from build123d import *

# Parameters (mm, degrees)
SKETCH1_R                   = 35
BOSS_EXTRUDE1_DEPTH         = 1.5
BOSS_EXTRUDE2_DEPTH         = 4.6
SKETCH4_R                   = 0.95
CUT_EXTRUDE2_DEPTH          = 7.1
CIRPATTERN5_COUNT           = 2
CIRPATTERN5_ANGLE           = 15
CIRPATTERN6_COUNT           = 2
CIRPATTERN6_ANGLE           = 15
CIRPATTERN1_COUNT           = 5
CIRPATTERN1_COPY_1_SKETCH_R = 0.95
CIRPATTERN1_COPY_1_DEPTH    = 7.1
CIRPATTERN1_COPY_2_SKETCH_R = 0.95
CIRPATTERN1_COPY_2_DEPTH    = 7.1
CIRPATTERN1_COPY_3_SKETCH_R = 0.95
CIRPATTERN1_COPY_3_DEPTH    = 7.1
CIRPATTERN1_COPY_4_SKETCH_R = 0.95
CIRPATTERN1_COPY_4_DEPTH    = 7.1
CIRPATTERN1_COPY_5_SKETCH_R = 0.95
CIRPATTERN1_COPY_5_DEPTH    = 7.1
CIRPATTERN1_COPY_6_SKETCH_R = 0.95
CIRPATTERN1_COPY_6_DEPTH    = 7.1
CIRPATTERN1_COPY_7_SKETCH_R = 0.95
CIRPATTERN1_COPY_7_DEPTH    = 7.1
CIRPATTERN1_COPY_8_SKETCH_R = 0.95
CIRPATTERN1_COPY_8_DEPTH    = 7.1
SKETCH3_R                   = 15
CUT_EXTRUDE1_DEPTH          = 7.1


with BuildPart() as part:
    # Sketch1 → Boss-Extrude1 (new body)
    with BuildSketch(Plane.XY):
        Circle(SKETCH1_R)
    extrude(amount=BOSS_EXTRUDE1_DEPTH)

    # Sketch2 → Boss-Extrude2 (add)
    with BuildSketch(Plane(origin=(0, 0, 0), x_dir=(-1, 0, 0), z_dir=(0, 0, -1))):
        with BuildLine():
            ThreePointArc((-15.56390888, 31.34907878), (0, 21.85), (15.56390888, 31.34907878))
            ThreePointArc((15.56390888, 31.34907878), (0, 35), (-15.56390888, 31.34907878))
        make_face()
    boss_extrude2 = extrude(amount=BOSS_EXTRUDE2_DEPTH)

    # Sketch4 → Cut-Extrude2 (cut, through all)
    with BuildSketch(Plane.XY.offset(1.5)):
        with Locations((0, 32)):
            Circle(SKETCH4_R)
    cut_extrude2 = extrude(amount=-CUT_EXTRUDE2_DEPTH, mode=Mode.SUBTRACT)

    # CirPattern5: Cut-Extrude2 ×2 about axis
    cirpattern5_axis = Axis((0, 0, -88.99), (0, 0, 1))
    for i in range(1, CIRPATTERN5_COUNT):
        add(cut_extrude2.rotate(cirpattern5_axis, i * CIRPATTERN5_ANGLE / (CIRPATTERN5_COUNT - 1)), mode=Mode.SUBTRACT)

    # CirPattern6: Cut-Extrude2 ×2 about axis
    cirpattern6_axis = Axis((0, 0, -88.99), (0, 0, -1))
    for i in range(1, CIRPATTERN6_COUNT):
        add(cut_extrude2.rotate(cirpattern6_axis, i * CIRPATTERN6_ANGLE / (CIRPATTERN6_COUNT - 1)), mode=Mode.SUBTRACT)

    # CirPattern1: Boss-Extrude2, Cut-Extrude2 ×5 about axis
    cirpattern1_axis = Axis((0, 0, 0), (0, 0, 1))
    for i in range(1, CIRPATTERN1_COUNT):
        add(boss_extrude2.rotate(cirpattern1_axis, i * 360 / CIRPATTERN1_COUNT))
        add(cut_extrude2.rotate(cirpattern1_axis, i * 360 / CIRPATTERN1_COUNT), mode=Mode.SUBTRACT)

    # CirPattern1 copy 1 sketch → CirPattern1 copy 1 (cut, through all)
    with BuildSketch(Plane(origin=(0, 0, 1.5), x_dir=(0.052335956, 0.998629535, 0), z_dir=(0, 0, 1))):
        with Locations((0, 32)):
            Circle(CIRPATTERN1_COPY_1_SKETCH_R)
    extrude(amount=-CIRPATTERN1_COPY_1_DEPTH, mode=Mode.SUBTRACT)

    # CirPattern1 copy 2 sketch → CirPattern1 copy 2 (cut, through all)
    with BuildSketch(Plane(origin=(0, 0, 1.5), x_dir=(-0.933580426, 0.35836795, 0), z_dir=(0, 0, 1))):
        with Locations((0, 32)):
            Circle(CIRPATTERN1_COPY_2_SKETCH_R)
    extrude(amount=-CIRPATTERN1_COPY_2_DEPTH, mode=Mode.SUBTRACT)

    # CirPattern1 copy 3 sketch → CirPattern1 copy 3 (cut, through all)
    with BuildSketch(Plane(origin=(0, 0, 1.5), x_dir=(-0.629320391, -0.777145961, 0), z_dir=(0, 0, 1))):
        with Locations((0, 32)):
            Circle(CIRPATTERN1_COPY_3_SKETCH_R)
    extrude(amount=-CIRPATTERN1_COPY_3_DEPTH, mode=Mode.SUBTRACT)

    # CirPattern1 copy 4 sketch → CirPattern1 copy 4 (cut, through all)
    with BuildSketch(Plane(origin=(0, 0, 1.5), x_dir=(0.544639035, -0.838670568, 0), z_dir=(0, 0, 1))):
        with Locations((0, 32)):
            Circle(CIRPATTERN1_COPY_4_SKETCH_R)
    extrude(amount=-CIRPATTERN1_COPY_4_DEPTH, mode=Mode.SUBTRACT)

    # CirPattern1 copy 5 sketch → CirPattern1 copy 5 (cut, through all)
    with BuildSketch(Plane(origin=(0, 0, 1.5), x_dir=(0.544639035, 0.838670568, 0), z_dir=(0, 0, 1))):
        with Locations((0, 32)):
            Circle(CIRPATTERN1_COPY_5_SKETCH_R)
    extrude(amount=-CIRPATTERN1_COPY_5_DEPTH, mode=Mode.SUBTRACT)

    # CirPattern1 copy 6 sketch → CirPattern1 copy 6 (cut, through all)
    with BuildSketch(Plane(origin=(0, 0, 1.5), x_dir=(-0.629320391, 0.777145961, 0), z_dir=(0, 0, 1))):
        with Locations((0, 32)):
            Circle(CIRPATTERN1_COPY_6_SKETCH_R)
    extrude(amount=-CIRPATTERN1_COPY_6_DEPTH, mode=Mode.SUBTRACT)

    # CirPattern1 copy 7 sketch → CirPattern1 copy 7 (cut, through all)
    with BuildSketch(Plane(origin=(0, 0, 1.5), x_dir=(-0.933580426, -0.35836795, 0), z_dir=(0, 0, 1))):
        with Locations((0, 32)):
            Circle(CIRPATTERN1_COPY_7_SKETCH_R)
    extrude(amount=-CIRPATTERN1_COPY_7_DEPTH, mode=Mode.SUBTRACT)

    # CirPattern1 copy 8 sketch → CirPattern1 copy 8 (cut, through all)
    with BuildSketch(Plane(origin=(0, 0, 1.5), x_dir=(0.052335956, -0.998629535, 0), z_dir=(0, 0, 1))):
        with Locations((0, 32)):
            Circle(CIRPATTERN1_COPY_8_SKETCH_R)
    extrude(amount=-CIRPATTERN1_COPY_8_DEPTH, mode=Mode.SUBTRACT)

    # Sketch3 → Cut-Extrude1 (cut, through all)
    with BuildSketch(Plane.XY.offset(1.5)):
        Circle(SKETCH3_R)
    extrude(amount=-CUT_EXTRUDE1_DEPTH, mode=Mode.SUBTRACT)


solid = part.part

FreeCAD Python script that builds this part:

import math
import FreeCAD as App
import Part
import Sketcher

V = App.Vector
Q = App.Units.Quantity

doc = App.newDocument("Part")
body = doc.addObject("PartDesign::Body", "Body")

# Sketch on XY plane
sketch1 = doc.addObject("Sketcher::SketchObject", "Sketch")
body.addObject(sketch1)
sketch1.AttachmentSupport = (doc.XY_Plane, [""])
sketch1.MapMode = "FlatFace"
sketch1.addGeometry(Part.Circle(V(0, 0, 0), V(0, 0, 1), 35), False)
sketch1.addConstraint(Sketcher.Constraint("Coincident", 0, 3, -1, 1))
sketch1.addConstraint(Sketcher.Constraint("Diameter", 0, Q("70 mm")))
pad1 = doc.addObject("PartDesign::Pad", "Pad")
body.addObject(pad1)
pad1.Profile = sketch1
pad1.Length = 1.5

# Sketch on XY plane
sketch2 = doc.addObject("Sketcher::SketchObject", "Sketch001")
body.addObject(sketch2)
sketch2.AttachmentSupport = (doc.XY_Plane, [""])
sketch2.MapMode = "FlatFace"
sketch2.addGeometry(Part.ArcOfCircle(Part.Circle(V(0, 39, 0), V(0, 0, 1), 18), math.radians(-153), math.radians(-27)), False)
sketch2.addGeometry(Part.ArcOfCircle(Part.Circle(V(0, 0, 0), V(0, 0, 1), 35), math.radians(64), math.radians(116)), False)
sketch2.addConstraint(Sketcher.Constraint("Coincident", 0, 1, 1, 2))
sketch2.addConstraint(Sketcher.Constraint("Coincident", 1, 1, 0, 2))
sketch2.addConstraint(Sketcher.Constraint("Coincident", 1, 3, -1, 1))
sketch2.addConstraint(Sketcher.Constraint("PointOnObject", 0, 3, -2))
sketch2.addConstraint(Sketcher.Constraint("Radius", 1, Q("35 mm")))
sketch2.addConstraint(Sketcher.Constraint("Radius", 0, Q("17.5 mm")))
sketch2.addConstraint(Sketcher.Constraint("DistanceY", -1, 1, 0, 3, Q("39.35 mm")))
pad2 = doc.addObject("PartDesign::Pad", "Pad001")
body.addObject(pad2)
pad2.Profile = sketch2
pad2.Length = 4.6
pad2.Reversed = True

# Sketch on XY plane
sketch3 = doc.addObject("Sketcher::SketchObject", "Sketch002")
body.addObject(sketch3)
sketch3.AttachmentSupport = (doc.XY_Plane, [""])
sketch3.MapMode = "FlatFace"
sketch3.AttachmentOffset = App.Placement(V(0, 0, 1.5), App.Rotation())
sketch3.addGeometry(Part.Circle(V(0, 32, 0), V(0, 0, 1), 0.9), False)
sketch3.addConstraint(Sketcher.Constraint("PointOnObject", 0, 3, -2))
sketch3.addConstraint(Sketcher.Constraint("Diameter", 0, Q("1.9 mm")))
sketch3.addConstraint(Sketcher.Constraint("DistanceY", -1, 1, 0, 3, Q("32 mm")))
pocket1 = doc.addObject("PartDesign::Pocket", "Pocket")
body.addObject(pocket1)
pocket1.Profile = sketch3
pocket1.Type = "ThroughAll"
doc.recompute()

polarpattern = doc.addObject("PartDesign::PolarPattern", "PolarPattern")
body.addObject(polarpattern)
polarpattern.Originals = [pocket1]
polarpattern.Axis = (doc.Z_Axis, [""])
polarpattern.Angle = 15
polarpattern.Occurrences = 2
body.Tip = polarpattern
doc.recompute()

polarpattern2 = doc.addObject("PartDesign::PolarPattern", "PolarPattern001")
body.addObject(polarpattern2)
polarpattern2.Originals = [pocket1]
polarpattern2.Axis = (doc.Z_Axis, [""])
polarpattern2.Angle = 15
polarpattern2.Occurrences = 2
polarpattern2.Reversed = True
body.Tip = polarpattern2
doc.recompute()

polarpattern3 = doc.addObject("PartDesign::PolarPattern", "PolarPattern002")
body.addObject(polarpattern3)
polarpattern3.Originals = [pad2, pocket1]
polarpattern3.Axis = (doc.Z_Axis, [""])
polarpattern3.Angle = 360
polarpattern3.Occurrences = 5
body.Tip = polarpattern3

# Sketch on XY plane
sketch4 = doc.addObject("Sketcher::SketchObject", "Sketch003")
body.addObject(sketch4)
sketch4.AttachmentSupport = (doc.XY_Plane, [""])
sketch4.MapMode = "FlatFace"
sketch4.AttachmentOffset = App.Placement(V(0, 0, 1.5), App.Rotation())
sketch4.addGeometry(Part.Circle(V(-32, 1.7, 0), V(0, 0, 1), 0.9), False)
sketch4.addConstraint(Sketcher.Constraint("Diameter", 0, Q("1.9 mm")))
sketch4.addConstraint(Sketcher.Constraint("DistanceY", -1, 1, 0, 3, Q("1.674751 mm")))
sketch4.addConstraint(Sketcher.Constraint("DistanceX", 0, 3, -1, 1, Q("31.956145 mm")))
pocket2 = doc.addObject("PartDesign::Pocket", "Pocket001")
body.addObject(pocket2)
pocket2.Profile = sketch4
pocket2.Type = "ThroughAll"

# Sketch on XY plane
sketch5 = doc.addObject("Sketcher::SketchObject", "Sketch004")
body.addObject(sketch5)
sketch5.AttachmentSupport = (doc.XY_Plane, [""])
sketch5.MapMode = "FlatFace"
sketch5.AttachmentOffset = App.Placement(V(0, 0, 1.5), App.Rotation())
sketch5.addGeometry(Part.Circle(V(-11.5, -29.9, 0), V(0, 0, 1), 0.9), False)
sketch5.addConstraint(Sketcher.Constraint("Diameter", 0, Q("1.9 mm")))
sketch5.addConstraint(Sketcher.Constraint("DistanceX", 0, 3, -1, 1, Q("11.467774 mm")))
sketch5.addConstraint(Sketcher.Constraint("DistanceY", 0, 3, -1, 1, Q("29.874574 mm")))
pocket3 = doc.addObject("PartDesign::Pocket", "Pocket002")
body.addObject(pocket3)
pocket3.Profile = sketch5
pocket3.Type = "ThroughAll"

# Sketch on XY plane
sketch6 = doc.addObject("Sketcher::SketchObject", "Sketch005")
body.addObject(sketch6)
sketch6.AttachmentSupport = (doc.XY_Plane, [""])
sketch6.MapMode = "FlatFace"
sketch6.AttachmentOffset = App.Placement(V(0, 0, 1.5), App.Rotation())
sketch6.addGeometry(Part.Circle(V(24.9, -20.1, 0), V(0, 0, 1), 0.9), False)
sketch6.addConstraint(Sketcher.Constraint("Diameter", 0, Q("1.9 mm")))
sketch6.addConstraint(Sketcher.Constraint("DistanceX", -1, 1, 0, 3, Q("24.868671 mm")))
sketch6.addConstraint(Sketcher.Constraint("DistanceY", 0, 3, -1, 1, Q("20.138253 mm")))
pocket4 = doc.addObject("PartDesign::Pocket", "Pocket003")
body.addObject(pocket4)
pocket4.Profile = sketch6
pocket4.Type = "ThroughAll"

# Sketch on XY plane
sketch7 = doc.addObject("Sketcher::SketchObject", "Sketch006")
body.addObject(sketch7)
sketch7.AttachmentSupport = (doc.XY_Plane, [""])
sketch7.MapMode = "FlatFace"
sketch7.AttachmentOffset = App.Placement(V(0, 0, 1.5), App.Rotation())
sketch7.addGeometry(Part.Circle(V(26.8, 17.4, 0), V(0, 0, 1), 0.9), False)
sketch7.addConstraint(Sketcher.Constraint("Diameter", 0, Q("1.9 mm")))
sketch7.addConstraint(Sketcher.Constraint("DistanceX", -1, 1, 0, 3, Q("26.837458 mm")))
sketch7.addConstraint(Sketcher.Constraint("DistanceY", -1, 1, 0, 3, Q("17.428449 mm")))
pocket5 = doc.addObject("PartDesign::Pocket", "Pocket004")
body.addObject(pocket5)
pocket5.Profile = sketch7
pocket5.Type = "ThroughAll"

# Sketch on XY plane
sketch8 = doc.addObject("Sketcher::SketchObject", "Sketch007")
body.addObject(sketch8)
sketch8.AttachmentSupport = (doc.XY_Plane, [""])
sketch8.MapMode = "FlatFace"
sketch8.AttachmentOffset = App.Placement(V(0, 0, 1.5), App.Rotation())
sketch8.addGeometry(Part.Circle(V(-26.8, 17.4, 0), V(0, 0, 1), 0.9), False)
sketch8.addConstraint(Sketcher.Constraint("Diameter", 0, Q("1.9 mm")))
sketch8.addConstraint(Sketcher.Constraint("DistanceX", 0, 3, -1, 1, Q("26.837458 mm")))
sketch8.addConstraint(Sketcher.Constraint("DistanceY", -1, 1, 0, 3, Q("17.428449 mm")))
pocket6 = doc.addObject("PartDesign::Pocket", "Pocket005")
body.addObject(pocket6)
pocket6.Profile = sketch8
pocket6.Type = "ThroughAll"

# Sketch on XY plane
sketch9 = doc.addObject("Sketcher::SketchObject", "Sketch008")
body.addObject(sketch9)
sketch9.AttachmentSupport = (doc.XY_Plane, [""])
sketch9.MapMode = "FlatFace"
sketch9.AttachmentOffset = App.Placement(V(0, 0, 1.5), App.Rotation())
sketch9.addGeometry(Part.Circle(V(-24.9, -20.1, 0), V(0, 0, 1), 0.9), False)
sketch9.addConstraint(Sketcher.Constraint("Diameter", 0, Q("1.9 mm")))
sketch9.addConstraint(Sketcher.Constraint("DistanceX", 0, 3, -1, 1, Q("24.868671 mm")))
sketch9.addConstraint(Sketcher.Constraint("DistanceY", 0, 3, -1, 1, Q("20.138253 mm")))
pocket7 = doc.addObject("PartDesign::Pocket", "Pocket006")
body.addObject(pocket7)
pocket7.Profile = sketch9
pocket7.Type = "ThroughAll"

# Sketch on XY plane
sketch10 = doc.addObject("Sketcher::SketchObject", "Sketch009")
body.addObject(sketch10)
sketch10.AttachmentSupport = (doc.XY_Plane, [""])
sketch10.MapMode = "FlatFace"
sketch10.AttachmentOffset = App.Placement(V(0, 0, 1.5), App.Rotation())
sketch10.addGeometry(Part.Circle(V(11.5, -29.9, 0), V(0, 0, 1), 0.9), False)
sketch10.addConstraint(Sketcher.Constraint("Diameter", 0, Q("1.9 mm")))
sketch10.addConstraint(Sketcher.Constraint("DistanceX", -1, 1, 0, 3, Q("11.467774 mm")))
sketch10.addConstraint(Sketcher.Constraint("DistanceY", 0, 3, -1, 1, Q("29.874574 mm")))
pocket8 = doc.addObject("PartDesign::Pocket", "Pocket007")
body.addObject(pocket8)
pocket8.Profile = sketch10
pocket8.Type = "ThroughAll"

# Sketch on XY plane
sketch11 = doc.addObject("Sketcher::SketchObject", "Sketch010")
body.addObject(sketch11)
sketch11.AttachmentSupport = (doc.XY_Plane, [""])
sketch11.MapMode = "FlatFace"
sketch11.AttachmentOffset = App.Placement(V(0, 0, 1.5), App.Rotation())
sketch11.addGeometry(Part.Circle(V(32, 1.7, 0), V(0, 0, 1), 0.9), False)
sketch11.addConstraint(Sketcher.Constraint("Diameter", 0, Q("1.9 mm")))
sketch11.addConstraint(Sketcher.Constraint("DistanceY", -1, 1, 0, 3, Q("1.674751 mm")))
sketch11.addConstraint(Sketcher.Constraint("DistanceX", -1, 1, 0, 3, Q("31.956145 mm")))
pocket9 = doc.addObject("PartDesign::Pocket", "Pocket008")
body.addObject(pocket9)
pocket9.Profile = sketch11
pocket9.Type = "ThroughAll"

# Sketch on XY plane
sketch12 = doc.addObject("Sketcher::SketchObject", "Sketch011")
body.addObject(sketch12)
sketch12.AttachmentSupport = (doc.XY_Plane, [""])
sketch12.MapMode = "FlatFace"
sketch12.AttachmentOffset = App.Placement(V(0, 0, 1.5), App.Rotation())
sketch12.addGeometry(Part.Circle(V(0, 0, 0), V(0, 0, 1), 15), False)
sketch12.addConstraint(Sketcher.Constraint("Coincident", 0, 3, -1, 1))
sketch12.addConstraint(Sketcher.Constraint("Diameter", 0, Q("30 mm")))
pocket10 = doc.addObject("PartDesign::Pocket", "Pocket009")
body.addObject(pocket10)
pocket10.Profile = sketch12
pocket10.Type = "ThroughAll"

doc.recompute()
